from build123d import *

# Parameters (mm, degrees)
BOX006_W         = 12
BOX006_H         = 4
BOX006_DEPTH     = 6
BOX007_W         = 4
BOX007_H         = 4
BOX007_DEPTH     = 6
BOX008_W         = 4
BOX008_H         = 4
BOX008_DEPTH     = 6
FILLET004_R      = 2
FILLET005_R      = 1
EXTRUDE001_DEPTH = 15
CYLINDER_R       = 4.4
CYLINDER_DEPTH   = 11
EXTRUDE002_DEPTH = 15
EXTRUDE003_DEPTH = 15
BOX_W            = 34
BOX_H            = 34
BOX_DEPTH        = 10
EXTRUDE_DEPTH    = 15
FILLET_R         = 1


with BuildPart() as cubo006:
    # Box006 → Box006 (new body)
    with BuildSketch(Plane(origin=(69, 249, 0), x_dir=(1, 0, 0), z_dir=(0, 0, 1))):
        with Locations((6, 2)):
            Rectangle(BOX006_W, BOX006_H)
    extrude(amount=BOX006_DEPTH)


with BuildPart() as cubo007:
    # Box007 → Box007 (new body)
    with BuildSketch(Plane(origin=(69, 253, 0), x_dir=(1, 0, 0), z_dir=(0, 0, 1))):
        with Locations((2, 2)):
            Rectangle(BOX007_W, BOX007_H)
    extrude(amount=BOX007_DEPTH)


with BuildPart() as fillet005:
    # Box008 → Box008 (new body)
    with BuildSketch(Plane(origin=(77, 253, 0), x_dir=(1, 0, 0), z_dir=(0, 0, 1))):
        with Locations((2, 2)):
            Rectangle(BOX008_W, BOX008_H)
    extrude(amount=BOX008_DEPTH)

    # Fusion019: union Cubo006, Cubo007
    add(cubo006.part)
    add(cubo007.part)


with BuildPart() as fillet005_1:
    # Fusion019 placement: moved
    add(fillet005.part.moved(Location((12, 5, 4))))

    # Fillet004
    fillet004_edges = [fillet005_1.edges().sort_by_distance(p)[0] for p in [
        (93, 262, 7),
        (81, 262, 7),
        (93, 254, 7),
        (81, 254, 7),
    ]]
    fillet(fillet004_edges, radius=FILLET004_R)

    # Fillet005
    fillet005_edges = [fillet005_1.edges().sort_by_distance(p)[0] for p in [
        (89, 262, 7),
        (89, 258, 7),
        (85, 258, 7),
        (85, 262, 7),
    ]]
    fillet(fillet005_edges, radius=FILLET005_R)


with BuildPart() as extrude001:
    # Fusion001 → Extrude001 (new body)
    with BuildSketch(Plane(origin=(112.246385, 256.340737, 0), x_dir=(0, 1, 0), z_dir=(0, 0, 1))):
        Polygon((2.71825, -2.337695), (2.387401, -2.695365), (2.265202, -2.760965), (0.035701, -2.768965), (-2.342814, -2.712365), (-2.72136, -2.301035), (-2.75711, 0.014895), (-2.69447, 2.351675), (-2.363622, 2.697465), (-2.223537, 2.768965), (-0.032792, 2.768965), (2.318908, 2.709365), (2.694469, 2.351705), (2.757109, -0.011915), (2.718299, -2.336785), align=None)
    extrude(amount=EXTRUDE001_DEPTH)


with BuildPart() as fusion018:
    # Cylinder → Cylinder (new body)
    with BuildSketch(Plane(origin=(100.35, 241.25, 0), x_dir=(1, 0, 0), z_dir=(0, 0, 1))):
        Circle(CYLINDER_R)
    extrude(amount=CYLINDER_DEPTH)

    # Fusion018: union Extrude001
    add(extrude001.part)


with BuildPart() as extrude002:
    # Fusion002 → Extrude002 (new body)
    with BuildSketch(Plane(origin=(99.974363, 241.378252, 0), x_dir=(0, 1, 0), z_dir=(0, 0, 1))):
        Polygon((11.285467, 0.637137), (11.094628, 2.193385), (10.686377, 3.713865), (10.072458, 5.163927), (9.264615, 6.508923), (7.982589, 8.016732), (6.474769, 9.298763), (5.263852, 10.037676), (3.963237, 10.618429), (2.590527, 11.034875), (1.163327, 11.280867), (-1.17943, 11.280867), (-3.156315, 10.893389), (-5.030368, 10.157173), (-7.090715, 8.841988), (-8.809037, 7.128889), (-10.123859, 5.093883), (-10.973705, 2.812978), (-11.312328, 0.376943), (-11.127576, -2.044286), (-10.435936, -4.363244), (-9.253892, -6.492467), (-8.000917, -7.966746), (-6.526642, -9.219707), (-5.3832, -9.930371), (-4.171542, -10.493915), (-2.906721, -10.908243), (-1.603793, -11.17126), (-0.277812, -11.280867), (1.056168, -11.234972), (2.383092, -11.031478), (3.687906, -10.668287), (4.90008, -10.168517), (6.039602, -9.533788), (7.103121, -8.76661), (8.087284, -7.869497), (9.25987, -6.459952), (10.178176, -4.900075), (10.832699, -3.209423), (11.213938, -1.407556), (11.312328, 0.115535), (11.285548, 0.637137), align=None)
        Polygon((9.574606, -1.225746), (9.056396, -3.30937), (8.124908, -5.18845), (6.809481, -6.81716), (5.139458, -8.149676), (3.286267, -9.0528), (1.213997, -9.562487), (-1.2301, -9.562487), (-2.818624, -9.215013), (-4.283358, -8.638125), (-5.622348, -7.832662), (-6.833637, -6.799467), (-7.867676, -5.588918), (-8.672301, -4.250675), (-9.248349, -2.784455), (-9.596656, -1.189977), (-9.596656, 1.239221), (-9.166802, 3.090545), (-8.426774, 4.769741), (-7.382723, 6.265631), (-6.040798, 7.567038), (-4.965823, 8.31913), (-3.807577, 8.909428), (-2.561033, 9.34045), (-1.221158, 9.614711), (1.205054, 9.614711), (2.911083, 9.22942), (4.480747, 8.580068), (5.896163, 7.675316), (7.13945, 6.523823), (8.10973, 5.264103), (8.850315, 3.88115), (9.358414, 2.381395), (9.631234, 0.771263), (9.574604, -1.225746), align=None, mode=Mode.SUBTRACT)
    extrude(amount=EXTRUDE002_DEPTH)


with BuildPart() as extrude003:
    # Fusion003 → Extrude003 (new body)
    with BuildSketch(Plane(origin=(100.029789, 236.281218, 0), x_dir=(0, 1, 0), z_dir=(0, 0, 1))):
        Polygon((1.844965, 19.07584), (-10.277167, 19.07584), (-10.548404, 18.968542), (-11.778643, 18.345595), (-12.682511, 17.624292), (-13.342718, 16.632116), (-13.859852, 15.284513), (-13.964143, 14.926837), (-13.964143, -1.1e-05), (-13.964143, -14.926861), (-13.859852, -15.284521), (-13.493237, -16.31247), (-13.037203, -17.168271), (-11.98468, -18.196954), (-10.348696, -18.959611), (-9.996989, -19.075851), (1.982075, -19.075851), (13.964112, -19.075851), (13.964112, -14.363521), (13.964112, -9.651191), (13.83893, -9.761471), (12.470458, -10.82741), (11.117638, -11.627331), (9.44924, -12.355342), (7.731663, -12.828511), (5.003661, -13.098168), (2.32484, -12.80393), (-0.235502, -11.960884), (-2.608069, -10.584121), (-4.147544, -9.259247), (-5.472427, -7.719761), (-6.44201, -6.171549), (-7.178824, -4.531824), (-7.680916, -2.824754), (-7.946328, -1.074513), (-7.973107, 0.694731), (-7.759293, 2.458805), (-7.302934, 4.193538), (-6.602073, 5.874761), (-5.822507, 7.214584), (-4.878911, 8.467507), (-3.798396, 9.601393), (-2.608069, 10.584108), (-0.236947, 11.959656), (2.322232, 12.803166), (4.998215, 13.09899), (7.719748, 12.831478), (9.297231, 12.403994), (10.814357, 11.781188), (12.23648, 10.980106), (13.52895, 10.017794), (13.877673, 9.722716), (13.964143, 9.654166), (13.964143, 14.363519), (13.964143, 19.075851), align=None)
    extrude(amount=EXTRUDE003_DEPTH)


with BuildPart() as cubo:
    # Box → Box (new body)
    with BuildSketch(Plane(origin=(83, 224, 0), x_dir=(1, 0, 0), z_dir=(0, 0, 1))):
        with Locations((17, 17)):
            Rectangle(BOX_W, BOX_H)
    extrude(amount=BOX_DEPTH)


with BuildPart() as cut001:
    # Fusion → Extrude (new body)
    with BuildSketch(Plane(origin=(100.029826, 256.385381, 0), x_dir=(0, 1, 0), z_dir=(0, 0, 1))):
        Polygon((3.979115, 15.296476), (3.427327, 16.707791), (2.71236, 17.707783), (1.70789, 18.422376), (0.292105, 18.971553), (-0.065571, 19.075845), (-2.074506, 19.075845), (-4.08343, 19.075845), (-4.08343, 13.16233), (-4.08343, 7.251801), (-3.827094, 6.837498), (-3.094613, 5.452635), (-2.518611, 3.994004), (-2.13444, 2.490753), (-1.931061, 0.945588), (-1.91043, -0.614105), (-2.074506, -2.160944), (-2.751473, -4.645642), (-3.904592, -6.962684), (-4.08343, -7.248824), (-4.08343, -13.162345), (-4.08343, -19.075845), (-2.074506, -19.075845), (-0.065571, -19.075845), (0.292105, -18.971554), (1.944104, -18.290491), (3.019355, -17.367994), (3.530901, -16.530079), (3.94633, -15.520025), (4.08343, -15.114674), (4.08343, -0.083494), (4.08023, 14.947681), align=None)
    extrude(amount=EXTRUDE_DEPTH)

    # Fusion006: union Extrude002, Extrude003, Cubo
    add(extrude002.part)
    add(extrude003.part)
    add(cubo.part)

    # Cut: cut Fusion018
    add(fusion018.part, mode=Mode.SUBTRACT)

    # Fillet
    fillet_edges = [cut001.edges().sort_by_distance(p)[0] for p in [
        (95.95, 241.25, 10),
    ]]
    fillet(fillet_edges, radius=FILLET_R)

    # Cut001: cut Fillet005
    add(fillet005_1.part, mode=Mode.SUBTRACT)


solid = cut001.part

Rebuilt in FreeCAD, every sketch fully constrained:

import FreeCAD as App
import Part
import Sketcher


def edges_at(feature, points):
    """Names of the edges that pass closest to the given points."""
    edges = feature.Shape.Edges
    near = lambda p: min(range(len(edges)), key=lambda i: edges[i].distToShape(Part.Vertex(*p))[0])
    return sorted({f"Edge{near(p) + 1}" for p in points})


def add_polygon(sketch, points):
    """Adds a closed chain of lines whose ends are joined by coincident constraints."""
    first, n = sketch.GeometryCount, len(points)
    for a, b in zip(points, points[1:] + points[:1]):
        sketch.addGeometry(Part.LineSegment(App.Vector(*a, 0), App.Vector(*b, 0)), False)
    for i in range(n):
        sketch.addConstraint(Sketcher.Constraint("Coincident", first + i, 2, first + (i + 1) % n, 1))

doc = App.newDocument("Part")
body = doc.addObject("PartDesign::Body", "Body")

sketch1 = body.newObject("Sketcher::SketchObject", "Sketch")
sketch1.AttachmentSupport = (doc.getObject("XY_Plane"), [""])
sketch1.MapMode = "FlatFace"
add_polygon(sketch1, [(69, 253), (69, 249), (81, 249), (81, 253)])
sketch1.addConstraint(Sketcher.Constraint("Vertical", 0))
sketch1.addConstraint(Sketcher.Constraint("Horizontal", 1))
sketch1.addConstraint(Sketcher.Constraint("Vertical", 2))
sketch1.addConstraint(Sketcher.Constraint("Horizontal", 3))
sketch1.addConstraint(Sketcher.Constraint("DistanceX", 1, 1, 1, 2, 12.0))
sketch1.addConstraint(Sketcher.Constraint("DistanceY", 0, 2, 0, 1, 4.0))
sketch1.addConstraint(Sketcher.Constraint("DistanceX", -1, 1, 0, 2, 69.0))
sketch1.addConstraint(Sketcher.Constraint("DistanceY", -1, 1, 0, 2, 249.0))
pad1 = body.newObject("PartDesign::Pad", "Pad")
pad1.Profile = sketch1
pad1.Length = 6
body2 = doc.addObject("PartDesign::Body", "Body001")

sketch2 = body2.newObject("Sketcher::SketchObject", "Sketch001")
sketch2.AttachmentSupport = (doc.getObject("XY_Plane001"), [""])
sketch2.MapMode = "FlatFace"
add_polygon(sketch2, [(69, 257), (69, 253), (73, 253), (73, 257)])
sketch2.addConstraint(Sketcher.Constraint("Vertical", 0))
sketch2.addConstraint(Sketcher.Constraint("Horizontal", 1))
sketch2.addConstraint(Sketcher.Constraint("Vertical", 2))
sketch2.addConstraint(Sketcher.Constraint("Horizontal", 3))
sketch2.addConstraint(Sketcher.Constraint("Equal", 3, 0))
sketch2.addConstraint(Sketcher.Constraint("DistanceX", 1, 1, 1, 2, 4.0))
sketch2.addConstraint(Sketcher.Constraint("DistanceX", -1, 1, 0, 2, 69.0))
sketch2.addConstraint(Sketcher.Constraint("DistanceY", -1, 1, 0, 2, 253.0))
pad2 = body2.newObject("PartDesign::Pad", "Pad001")
pad2.Profile = sketch2
pad2.Length = 6
body3 = doc.addObject("PartDesign::Body", "Body002")

sketch3 = body3.newObject("Sketcher::SketchObject", "Sketch002")
sketch3.AttachmentSupport = (doc.getObject("XY_Plane002"), [""])
sketch3.MapMode = "FlatFace"
add_polygon(sketch3, [(77, 257), (77, 253), (81, 253), (81, 257)])
sketch3.addConstraint(Sketcher.Constraint("Vertical", 0))
sketch3.addConstraint(Sketcher.Constraint("Horizontal", 1))
sketch3.addConstraint(Sketcher.Constraint("Vertical", 2))
sketch3.addConstraint(Sketcher.Constraint("Horizontal", 3))
sketch3.addConstraint(Sketcher.Constraint("Equal", 3, 0))
sketch3.addConstraint(Sketcher.Constraint("DistanceX", 1, 1, 1, 2, 4.0))
sketch3.addConstraint(Sketcher.Constraint("DistanceX", -1, 1, 0, 2, 77.0))
sketch3.addConstraint(Sketcher.Constraint("DistanceY", -1, 1, 0, 2, 253.0))
pad3 = body3.newObject("PartDesign::Pad", "Pad002")
pad3.Profile = sketch3
pad3.Length = 6
doc.recompute()

boolean = body3.newObject("PartDesign::Boolean", "Boolean")
boolean.Type = "Fuse"
boolean.addObjects([body])
doc.recompute()

boolean2 = body3.newObject("PartDesign::Boolean", "Boolean001")
boolean2.Type = "Fuse"
boolean2.addObjects([body2])
body4 = doc.addObject("PartDesign::Body", "Body003")
doc.recompute()

body3.Placement = App.Placement(App.Vector(12, 5, 4), App.Rotation(App.Vector(0, 0, 1), 0))
boolean3 = body4.newObject("PartDesign::Boolean", "Boolean002")
boolean3.Type = "Fuse"
boolean3.addObjects([body3])
doc.recompute()

fillet = body4.newObject("PartDesign::Fillet", "Fillet")
fillet.Base = (boolean3, edges_at(boolean3, [
    (93, 262, 7),
    (81, 262, 7),
    (93, 254, 7),
    (81, 254, 7),
]))
fillet.Radius = 2
doc.recompute()

fillet2 = body4.newObject("PartDesign::Fillet", "Fillet001")
fillet2.Base = (fillet, edges_at(fillet, [
    (89, 262, 7),
    (89, 258, 7),
    (85, 258, 7),
    (85, 262, 7),
]))
fillet2.Radius = 1
body5 = doc.addObject("PartDesign::Body", "Body004")

sketch4 = body5.newObject("Sketcher::SketchObject", "Sketch003")
sketch4.AttachmentSupport = (doc.getObject("XY_Plane004"), [""])
sketch4.MapMode = "FlatFace"
add_polygon(sketch4, [(114.94175, 258.728138), (114.58408, 259.058987), (114.58317, 259.059036), (112.2583, 259.097846), (109.89468, 259.035206), (109.53702, 258.659645), (109.47742, 256.307945), (109.47742, 254.1172), (109.54892, 253.977115), (109.89471, 253.646267), (112.23149, 253.583627), (114.54742, 253.619377), (114.95875, 253.997923), (115.01535, 256.376438), (115.00735, 258.605939)])
sketch4.addConstraint(Sketcher.Constraint("Vertical", 6))
sketch4.addConstraint(Sketcher.Constraint("DistanceX", 6, 2, 10, 2, 5.07))
sketch4.addConstraint(Sketcher.Constraint("DistanceX", 13, 2, 12, 2, 0.008))
sketch4.addConstraint(Sketcher.Constraint("DistanceX", -1, 1, 2, 2, 112.2583))
sketch4.addConstraint(Sketcher.Constraint("DistanceY", -1, 1, 6, 2, 254.1172))
sketch4.addConstraint(Sketcher.Constraint("DistanceX", 3, 2, 0, 2, 4.6894))
sketch4.addConstraint(Sketcher.Constraint("DistanceY", 4, 2, 2, 2, 0.438201))
sketch4.addConstraint(Sketcher.Constraint("DistanceX", 5, 2, 4, 2, 0.0596))
sketch4.addConstraint(Sketcher.Constraint("DistanceY", 5, 2, 4, 2, 2.3517))
sketch4.addConstraint(Sketcher.Constraint("DistanceX", 6, 2, 7, 2, 0.0715))
sketch4.addConstraint(Sketcher.Constraint("DistanceX", 11, 2, 12, 2, 0.0566))
sketch4.addConstraint(Sketcher.Constraint("DistanceY", 12, 2, 13, 2, 2.229501))
sketch4.addConstraint(Sketcher.Constraint("DistanceX", 14, 2, 13, 2, 0.0656))
sketch4.addConstraint(Sketcher.Constraint("DistanceY", 13, 2, 14, 2, 0.122199))
sketch4.addConstraint(Sketcher.Constraint("Distance", 1, 0.000911))
sketch4.addConstraint(Sketcher.Constraint("Distance", 3, 2.36445))
sketch4.addConstraint(Sketcher.Constraint("Distance", 4, 0.51862))
sketch4.addConstraint(Sketcher.Constraint("Distance", 8, 0.478572))
sketch4.addConstraint(Sketcher.Constraint("Distance", 9, 2.337619))
sketch4.addConstraint(Sketcher.Constraint("Distance", 12, 2.379188))
sketch4.addConstraint(Sketcher.Constraint("DistanceY", 6, 2, 6, 1, 2.190745))
sketch4.addConstraint(Sketcher.Constraint("DistanceX", -1, 1, 0, 2, 114.58408))
sketch4.addConstraint(Sketcher.Constraint("DistanceX", -1, 1, 1, 2, 114.58317))
sketch4.addConstraint(Sketcher.Constraint("DistanceX", -1, 1, 8, 2, 109.89471))
sketch4.addConstraint(Sketcher.Constraint("DistanceX", -1, 1, 9, 2, 112.23149))
sketch4.addConstraint(Sketcher.Constraint("DistanceX", -1, 1, 11, 2, 114.95875))
sketch4.addConstraint(Sketcher.Constraint("DistanceY", -1, 1, 12, 2, 256.376438))
sketch4.addConstraint(Sketcher.Constraint("DistanceY", 1, 2, 2, 2, 0.03881))
sketch4.addConstraint(Sketcher.Constraint("DistanceY", 7, 2, 5, 2, 2.33083))
sketch4.addConstraint(Sketcher.Constraint("DistanceY", 9, 2, 10, 2, 0.03575))
pad4 = body5.newObject("PartDesign::Pad", "Pad003")
pad4.Profile = sketch4
pad4.Length = 15
body6 = doc.addObject("PartDesign::Body", "Body005")
body6.AllowCompound = True

sketch5 = body6.newObject("Sketcher::SketchObject", "Sketch004")
sketch5.AttachmentSupport = (doc.getObject("XY_Plane005"), [""])
sketch5.MapMode = "FlatFace"
sketch5.addGeometry(Part.Circle(App.Vector(100.35, 241.25, 0), App.Vector(0, 0, 1), 4.4), False)
sketch5.addConstraint(Sketcher.Constraint("Diameter", 0, 8.8))
sketch5.addConstraint(Sketcher.Constraint("DistanceX", -1, 1, 0, 3, 100.35))
sketch5.addConstraint(Sketcher.Constraint("DistanceY", -1, 1, 0, 3, 241.25))
pad5 = body6.newObject("PartDesign::Pad", "Pad004")
pad5.Profile = sketch5
pad5.Length = 11
doc.recompute()

boolean4 = body6.newObject("PartDesign::Boolean", "Boolean003")
boolean4.Type = "Fuse"
boolean4.addObjects([body5])
body7 = doc.addObject("PartDesign::Body", "Body006")

sketch6 = body7.newObject("Sketcher::SketchObject", "Sketch005")
sketch6.AttachmentSupport = (doc.getObject("XY_Plane006"), [""])
sketch6.MapMode = "FlatFace"
add_polygon(sketch6, [(99.337226, 252.663719), (97.780978, 252.47288), (96.260498, 252.064629), (94.810436, 251.45071), (93.46544, 250.642867), (91.957631, 249.360841), (90.6756, 247.853021), (89.936687, 246.642104), (89.355934, 245.341489), (88.939488, 243.968779), (88.693496, 242.541579), (88.693496, 240.198822), (89.080974, 238.221937), (89.81719, 236.347884), (91.132375, 234.287537), (92.845474, 232.569215), (94.88048, 231.254393), (97.161385, 230.404547), (99.59742, 230.065924), (102.018649, 230.250676), (104.337607, 230.942316), (106.46683, 232.12436), (107.941109, 233.377335), (109.19407, 234.85161), (109.904734, 235.995052), (110.468278, 237.20671), (110.882606, 238.471531), (111.145623, 239.774459), (111.25523, 241.10044), (111.209335, 242.43442), (111.005841, 243.761344), (110.64265, 245.066158), (110.14288, 246.278332), (109.508151, 247.417854), (108.740973, 248.481373), (107.84386, 249.465536), (106.434315, 250.638122), (104.874438, 251.556428), (103.183786, 252.210951), (101.381919, 252.59219), (99.858828, 252.69058), (99.337226, 252.6638)])
sketch6.addGeometry(Part.LineSegment(App.Vector(101.200109, 250.952858, 0), App.Vector(101.200109, 250.952856, 0)), False)
sketch6.addGeometry(Part.LineSegment(App.Vector(101.200109, 250.952858, 0), App.Vector(103.283733, 250.434648, 0)), False)
sketch6.addGeometry(Part.LineSegment(App.Vector(103.283733, 250.434648, 0), App.Vector(105.162813, 249.50316, 0)), False)
sketch6.addGeometry(Part.LineSegment(App.Vector(105.162813, 249.50316, 0), App.Vector(106.791523, 248.187733, 0)), False)
sketch6.addGeometry(Part.LineSegment(App.Vector(106.791523, 248.187733, 0), App.Vector(108.124039, 246.51771, 0)), False)
sketch6.addGeometry(Part.LineSegment(App.Vector(108.124039, 246.51771, 0), App.Vector(109.027163, 244.664519, 0)), False)
sketch6.addGeometry(Part.LineSegment(App.Vector(109.027163, 244.664519, 0), App.Vector(109.53685, 242.592249, 0)), False)
sketch6.addGeometry(Part.LineSegment(App.Vector(109.53685, 242.592249, 0), App.Vector(109.53685, 240.148152, 0)), False)
sketch6.addGeometry(Part.LineSegment(App.Vector(109.53685, 240.148152, 0), App.Vector(109.189376, 238.559628, 0)), False)
sketch6.addGeometry(Part.LineSegment(App.Vector(109.189376, 238.559628, 0), App.Vector(108.612488, 237.094894, 0)), False)
sketch6.addGeometry(Part.LineSegment(App.Vector(108.612488, 237.094894, 0), App.Vector(107.807025, 235.755904, 0)), False)
sketch6.addGeometry(Part.LineSegment(App.Vector(107.807025, 235.755904, 0), App.Vector(106.77383, 234.544615, 0)), False)
sketch6.addGeometry(Part.LineSegment(App.Vector(106.77383, 234.544615, 0), App.Vector(105.563281, 233.510576, 0)), False)
sketch6.addGeometry(Part.LineSegment(App.Vector(105.563281, 233.510576, 0), App.Vector(104.225038, 232.705951, 0)), False)
sketch6.addGeometry(Part.LineSegment(App.Vector(104.225038, 232.705951, 0), App.Vector(102.758818, 232.129903, 0)), False)
sketch6.addGeometry(Part.LineSegment(App.Vector(102.758818, 232.129903, 0), App.Vector(101.16434, 231.781596, 0)), False)
sketch6.addGeometry(Part.LineSegment(App.Vector(101.16434, 231.781596, 0), App.Vector(98.735142, 231.781596, 0)), False)
sketch6.addGeometry(Part.LineSegment(App.Vector(98.735142, 231.781596, 0), App.Vector(96.883818, 232.21145, 0)), False)
sketch6.addGeometry(Part.LineSegment(App.Vector(96.883818, 232.21145, 0), App.Vector(95.204622, 232.951478, 0)), False)
sketch6.addGeometry(Part.LineSegment(App.Vector(95.204622, 232.951478, 0), App.Vector(93.708732, 233.995529, 0)), False)
sketch6.addGeometry(Part.LineSegment(App.Vector(93.708732, 233.995529, 0), App.Vector(92.407325, 235.337454, 0)), False)
sketch6.addGeometry(Part.LineSegment(App.Vector(92.407325, 235.337454, 0), App.Vector(91.655233, 236.412429, 0)), False)
sketch6.addGeometry(Part.LineSegment(App.Vector(91.655233, 236.412429, 0), App.Vector(91.064935, 237.570675, 0)), False)
sketch6.addGeometry(Part.LineSegment(App.Vector(91.064935, 237.570675, 0), App.Vector(90.633913, 238.817219, 0)), False)
sketch6.addGeometry(Part.LineSegment(App.Vector(90.633913, 238.817219, 0), App.Vector(90.359652, 240.157094, 0)), False)
sketch6.addGeometry(Part.LineSegment(App.Vector(90.359652, 240.157094, 0), App.Vector(90.359652, 242.583306, 0)), False)
sketch6.addGeometry(Part.LineSegment(App.Vector(90.359652, 242.583306, 0), App.Vector(90.744943, 244.289335, 0)), False)
sketch6.addGeometry(Part.LineSegment(App.Vector(90.744943, 244.289335, 0), App.Vector(91.394295, 245.858999, 0)), False)
sketch6.addGeometry(Part.LineSegment(App.Vector(91.394295, 245.858999, 0), App.Vector(92.299047, 247.274415, 0)), False)
sketch6.addGeometry(Part.LineSegment(App.Vector(92.299047, 247.274415, 0), App.Vector(93.45054, 248.517702, 0)), False)
sketch6.addGeometry(Part.LineSegment(App.Vector(93.45054, 248.517702, 0), App.Vector(94.71026, 249.487982, 0)), False)
sketch6.addGeometry(Part.LineSegment(App.Vector(94.71026, 249.487982, 0), App.Vector(96.093213, 250.228567, 0)), False)
sketch6.addGeometry(Part.LineSegment(App.Vector(96.093213, 250.228567, 0), App.Vector(97.592968, 250.736666, 0)), False)
sketch6.addGeometry(Part.LineSegment(App.Vector(97.592968, 250.736666, 0), App.Vector(99.2031, 251.009486, 0)), False)
sketch6.addGeometry(Part.LineSegment(App.Vector(99.2031, 251.009486, 0), App.Vector(101.200109, 250.952856, 0)), False)
sketch6.addConstraint(Sketcher.Constraint("Coincident", 42, 1, 43, 1))
sketch6.addConstraint(Sketcher.Constraint("Coincident", 43, 2, 44, 1))
sketch6.addConstraint(Sketcher.Constraint("Coincident", 44, 2, 45, 1))
sketch6.addConstraint(Sketcher.Constraint("Coincident", 45, 2, 46, 1))
sketch6.addConstraint(Sketcher.Constraint("Coincident", 46, 2, 47, 1))
sketch6.addConstraint(Sketcher.Constraint("Coincident", 47, 2, 48, 1))
sketch6.addConstraint(Sketcher.Constraint("Coincident", 48, 2, 49, 1))
sketch6.addConstraint(Sketcher.Constraint("Coincident", 49, 2, 50, 1))
sketch6.addConstraint(Sketcher.Constraint("Coincident", 50, 2, 51, 1))
sketch6.addConstraint(Sketcher.Constraint("Coincident", 51, 2, 52, 1))
sketch6.addConstraint(Sketcher.Constraint("Coincident", 52, 2, 53, 1))
sketch6.addConstraint(Sketcher.Constraint("Coincident", 53, 2, 54, 1))
sketch6.addConstraint(Sketcher.Constraint("Coincident", 54, 2, 55, 1))
sketch6.addConstraint(Sketcher.Constraint("Coincident", 55, 2, 56, 1))
sketch6.addConstraint(Sketcher.Constraint("Coincident", 56, 2, 57, 1))
sketch6.addConstraint(Sketcher.Constraint("Coincident", 57, 2, 58, 1))
sketch6.addConstraint(Sketcher.Constraint("Coincident", 58, 2, 59, 1))
sketch6.addConstraint(Sketcher.Constraint("Coincident", 59, 2, 60, 1))
sketch6.addConstraint(Sketcher.Constraint("Coincident", 60, 2, 61, 1))
sketch6.addConstraint(Sketcher.Constraint("Coincident", 61, 2, 62, 1))
sketch6.addConstraint(Sketcher.Constraint("Coincident", 62, 2, 63, 1))
sketch6.addConstraint(Sketcher.Constraint("Coincident", 63, 2, 64, 1))
sketch6.addConstraint(Sketcher.Constraint("Coincident", 64, 2, 65, 1))
sketch6.addConstraint(Sketcher.Constraint("Coincident", 65, 2, 66, 1))
sketch6.addConstraint(Sketcher.Constraint("Coincident", 66, 2, 67, 1))
sketch6.addConstraint(Sketcher.Constraint("Coincident", 67, 2, 68, 1))
sketch6.addConstraint(Sketcher.Constraint("Coincident", 68, 2, 69, 1))
sketch6.addConstraint(Sketcher.Constraint("Coincident", 69, 2, 70, 1))
sketch6.addConstraint(Sketcher.Constraint("Coincident", 70, 2, 71, 1))
sketch6.addConstraint(Sketcher.Constraint("Coincident", 71, 2, 72, 1))
sketch6.addConstraint(Sketcher.Constraint("Coincident", 72, 2, 73, 1))
sketch6.addConstraint(Sketcher.Constraint("Coincident", 73, 2, 74, 1))
sketch6.addConstraint(Sketcher.Constraint("Coincident", 74, 2, 75, 1))
sketch6.addConstraint(Sketcher.Constraint("Coincident", 75, 2, 76, 1))
sketch6.addConstraint(Sketcher.Constraint("Coincident", 76, 2, 42, 2))
sketch6.addConstraint(Sketcher.Constraint("Vertical", 10))
sketch6.addConstraint(Sketcher.Constraint("Vertical", 41))
sketch6.addConstraint(Sketcher.Constraint("Horizontal", 42))
sketch6.addConstraint(Sketcher.Constraint("Vertical", 49))
sketch6.addConstraint(Sketcher.Constraint("Horizontal", 58))
sketch6.addConstraint(Sketcher.Constraint("Vertical", 67))
sketch6.addConstraint(Sketcher.Constraint("DistanceY", -1, 1, 69, 2, 245.858999))
sketch6.addConstraint(Sketcher.Constraint("Distance", 11, 2.014501))
sketch6.addConstraint(Sketcher.Constraint("Distance", 21, 1.934798))
sketch6.addConstraint(Sketcher.Constraint("Distance", 24, 1.3363))
sketch6.addConstraint(Sketcher.Constraint("Distance", 43, 2.147098))
sketch6.addConstraint(Sketcher.Constraint("DistanceY", 67, 1, 67, 2, 2.426212))
sketch6.addConstraint(Sketcher.Constraint("DistanceX", -1, 1, 1, 2, 96.260498))
sketch6.addConstraint(Sketcher.Constraint("DistanceX", -1, 1, 5, 2, 90.6756))
sketch6.addConstraint(Sketcher.Constraint("DistanceY", -1, 1, 40, 2, 252.6638))
sketch6.addConstraint(Sketcher.Constraint("DistanceX", -1, 1, 75, 2, 99.2031))
sketch6.addConstraint(Sketcher.Constraint("Distance", 4, 1.979161))
sketch6.addConstraint(Sketcher.Constraint("Distance", 6, 1.41856))
sketch6.addConstraint(Sketcher.Constraint("Distance", 8, 1.434489))
sketch6.addConstraint(Sketcher.Constraint("Distance", 13, 2.444328))
sketch6.addConstraint(Sketcher.Constraint("Distance", 15, 2.42281))
sketch6.addConstraint(Sketcher.Constraint("Distance", 26, 1.32921))
sketch6.addConstraint(Sketcher.Constraint("Distance", 28, 1.334769))
sketch6.addConstraint(Sketcher.Constraint("Distance", 31, 1.311158))
sketch6.addConstraint(Sketcher.Constraint("Distance", 33, 1.311348))
sketch6.addConstraint(Sketcher.Constraint("Distance", 36, 1.810111))
sketch6.addConstraint(Sketcher.Constraint("Distance", 40, 0.522289))
sketch6.addConstraint(Sketcher.Constraint("Distance", 47, 2.061541))
sketch6.addConstraint(Sketcher.Constraint("Distance", 48, 2.13403))
sketch6.addConstraint(Sketcher.Constraint("Distance", 53, 1.592078))
sketch6.addConstraint(Sketcher.Constraint("Distance", 55, 1.561511))
sketch6.addConstraint(Sketcher.Constraint("Distance", 56, 1.57532))
sketch6.addConstraint(Sketcher.Constraint("Distance", 60, 1.835032))
sketch6.addConstraint(Sketcher.Constraint("Distance", 63, 1.31195))
sketch6.addConstraint(Sketcher.Constraint("Distance", 65, 1.318959))
sketch6.addConstraint(Sketcher.Constraint("Distance", 71, 1.694609))
sketch6.addConstraint(Sketcher.Constraint("Distance", 75, 1.633082))
sketch6.addConstraint(Sketcher.Constraint("Distance", 76, 1.997812))
sketch6.addConstraint(Sketcher.Constraint("DistanceX", 58, 2, 58, 1, 2.429198))
sketch6.addConstraint(Sketcher.Constraint("DistanceY", 10, 2, 10, 1, 2.342757))
sketch6.addConstraint(Sketcher.Constraint("DistanceY", 49, 2, 49, 1, 2.444097))
sketch6.addConstraint(Sketcher.Constraint("DistanceX", -1, 1, 0, 2, 97.780978))
sketch6.addConstraint(Sketcher.Constraint("DistanceY", -1, 1, 0, 2, 252.47288))
sketch6.addConstraint(Sketcher.Constraint("DistanceY", -1, 1, 1, 2, 252.064629))
sketch6.addConstraint(Sketcher.Constraint("DistanceY", -1, 1, 2, 2, 251.45071))
sketch6.addConstraint(Sketcher.Constraint("DistanceX", -1, 1, 3, 2, 93.46544))
sketch6.addConstraint(Sketcher.Constraint("DistanceX", -1, 1, 4, 2, 91.957631))
sketch6.addConstraint(Sketcher.Constraint("DistanceY", -1, 1, 4, 2, 249.360841))
sketch6.addConstraint(Sketcher.Constraint("DistanceY", -1, 1, 5, 2, 247.853021))
sketch6.addConstraint(Sketcher.Constraint("DistanceY", -1, 1, 7, 2, 245.341489))
sketch6.addConstraint(Sketcher.Constraint("DistanceY", -1, 1, 8, 2, 243.968779))
sketch6.addConstraint(Sketcher.Constraint("DistanceY", -1, 1, 9, 2, 242.541579))
sketch6.addConstraint(Sketcher.Constraint("DistanceX", -1, 1, 12, 2, 89.81719))
sketch6.addConstraint(Sketcher.Constraint("DistanceX", -1, 1, 15, 2, 94.88048))
sketch6.addConstraint(Sketcher.Constraint("DistanceX", -1, 1, 17, 2, 99.59742))
sketch6.addConstraint(Sketcher.Constraint("DistanceX", -1, 1, 18, 2, 102.018649))
sketch6.addConstraint(Sketcher.Constraint("DistanceX", -1, 1, 20, 2, 106.46683))
sketch6.addConstraint(Sketcher.Constraint("DistanceY", -1, 1, 20, 2, 232.12436))
sketch6.addConstraint(Sketcher.Constraint("DistanceX", -1, 1, 21, 2, 107.941109))
sketch6.addConstraint(Sketcher.Constraint("DistanceX", -1, 1, 22, 2, 109.19407))
sketch6.addConstraint(Sketcher.Constraint("DistanceY", -1, 1, 22, 2, 234.85161))
sketch6.addConstraint(Sketcher.Constraint("DistanceY", -1, 1, 23, 2, 235.995052))
sketch6.addConstraint(Sketcher.Constraint("DistanceX", -1, 1, 24, 2, 110.468278))
sketch6.addConstraint(Sketcher.Constraint("DistanceY", -1, 1, 24, 2, 237.20671))
sketch6.addConstraint(Sketcher.Constraint("DistanceY", -1, 1, 25, 2, 238.471531))
sketch6.addConstraint(Sketcher.Constraint("DistanceY", -1, 1, 26, 2, 239.774459))
sketch6.addConstraint(Sketcher.Constraint("DistanceX", -1, 1, 27, 2, 111.25523))
sketch6.addConstraint(Sketcher.Constraint("DistanceY", -1, 1, 27, 2, 241.10044))
sketch6.addConstraint(Sketcher.Constraint("DistanceY", -1, 1, 28, 2, 242.43442))
sketch6.addConstraint(Sketcher.Constraint("DistanceX", -1, 1, 29, 2, 111.005841))
sketch6.addConstraint(Sketcher.Constraint("DistanceX", -1, 1, 30, 2, 110.64265))
sketch6.addConstraint(Sketcher.Constraint("DistanceY", -1, 1, 30, 2, 245.066158))
sketch6.addConstraint(Sketcher.Constraint("DistanceX", -1, 1, 31, 2, 110.14288))
sketch6.addConstraint(Sketcher.Constraint("DistanceX", -1, 1, 32, 2, 109.508151))
sketch6.addConstraint(Sketcher.Constraint("DistanceX", -1, 1, 34, 2, 107.84386))
sketch6.addConstraint(Sketcher.Constraint("DistanceY", -1, 1, 36, 2, 251.556428))
sketch6.addConstraint(Sketcher.Constraint("DistanceY", -1, 1, 37, 2, 252.210951))
sketch6.addConstraint(Sketcher.Constraint("DistanceX", -1, 1, 38, 2, 101.381919))
sketch6.addConstraint(Sketcher.Constraint("DistanceY", -1, 1, 38, 2, 252.59219))
sketch6.addConstraint(Sketcher.Constraint("DistanceX", -1, 1, 39, 2, 99.858828))
sketch6.addConstraint(Sketcher.Constraint("DistanceY", -1, 1, 39, 2, 252.69058))
sketch6.addConstraint(Sketcher.Constraint("DistanceY", -1, 1, 41, 2, 252.663719))
sketch6.addConstraint(Sketcher.Constraint("DistanceX", -1, 1, 42, 1, 101.200109))
sketch6.addConstraint(Sketcher.Constraint("DistanceY", -1, 1, 42, 1, 250.952858))
sketch6.addConstraint(Sketcher.Constraint("DistanceY", -1, 1, 43, 2, 250.434648))
sketch6.addConstraint(Sketcher.Constraint("DistanceY", -1, 1, 44, 2, 249.50316))
sketch6.addConstraint(Sketcher.Constraint("DistanceX", -1, 1, 46, 2, 108.124039))
sketch6.addConstraint(Sketcher.Constraint("DistanceY", -1, 1, 46, 2, 246.51771))
sketch6.addConstraint(Sketcher.Constraint("DistanceY", -1, 1, 47, 2, 244.664519))
sketch6.addConstraint(Sketcher.Constraint("DistanceX", -1, 1, 48, 2, 109.53685))
sketch6.addConstraint(Sketcher.Constraint("DistanceY", -1, 1, 50, 2, 238.559628))
sketch6.addConstraint(Sketcher.Constraint("DistanceX", -1, 1, 51, 2, 108.612488))
sketch6.addConstraint(Sketcher.Constraint("DistanceX", -1, 1, 53, 2, 106.77383))
sketch6.addConstraint(Sketcher.Constraint("DistanceX", -1, 1, 54, 2, 105.563281))
sketch6.addConstraint(Sketcher.Constraint("DistanceY", -1, 1, 55, 2, 232.705951))
sketch6.addConstraint(Sketcher.Constraint("DistanceX", -1, 1, 56, 2, 102.758818))
sketch6.addConstraint(Sketcher.Constraint("DistanceX", -1, 1, 57, 2, 101.16434))
sketch6.addConstraint(Sketcher.Constraint("DistanceX", -1, 1, 59, 2, 96.883818))
sketch6.addConstraint(Sketcher.Constraint("DistanceY", -1, 1, 59, 2, 232.21145))
sketch6.addConstraint(Sketcher.Constraint("DistanceX", -1, 1, 60, 2, 95.204622))
sketch6.addConstraint(Sketcher.Constraint("DistanceX", -1, 1, 61, 2, 93.708732))
sketch6.addConstraint(Sketcher.Constraint("DistanceY", -1, 1, 61, 2, 233.995529))
sketch6.addConstraint(Sketcher.Constraint("DistanceY", -1, 1, 63, 2, 236.412429))
sketch6.addConstraint(Sketcher.Constraint("DistanceY", -1, 1, 65, 2, 238.817219))
sketch6.addConstraint(Sketcher.Constraint("DistanceX", -1, 1, 66, 2, 90.359652))
sketch6.addConstraint(Sketcher.Constraint("DistanceX", -1, 1, 71, 2, 93.45054))
sketch6.addConstraint(Sketcher.Constraint("DistanceX", -1, 1, 72, 2, 94.71026))
sketch6.addConstraint(Sketcher.Constraint("DistanceY", -1, 1, 72, 2, 249.487982))
sketch6.addConstraint(Sketcher.Constraint("DistanceX", -1, 1, 74, 2, 97.592968))
sketch6.addConstraint(Sketcher.Constraint("DistanceX", -1, 1, 76, 2, 101.200109))
sketch6.addConstraint(Sketcher.Constraint("Distance", 2, 1.574667))
sketch6.addConstraint(Sketcher.Constraint("Distance", 7, 1.424385))
sketch6.addConstraint(Sketcher.Constraint("Distance", 9, 1.448244))
sketch6.addConstraint(Sketcher.Constraint("Distance", 12, 2.013477))
sketch6.addConstraint(Sketcher.Constraint("Distance", 14, 2.426384))
sketch6.addConstraint(Sketcher.Constraint("Distance", 16, 2.434084))
sketch6.addConstraint(Sketcher.Constraint("Distance", 17, 2.459458))
sketch6.addConstraint(Sketcher.Constraint("Distance", 18, 2.428268))
sketch6.addConstraint(Sketcher.Constraint("Distance", 19, 2.419903))
sketch6.addConstraint(Sketcher.Constraint("Distance", 20, 2.435327))
sketch6.addConstraint(Sketcher.Constraint("Distance", 25, 1.330954))
sketch6.addConstraint(Sketcher.Constraint("Distance", 29, 1.342437))
sketch6.addConstraint(Sketcher.Constraint("Distance", 32, 1.304374))
sketch6.addConstraint(Sketcher.Constraint("Distance", 34, 1.331686))
sketch6.addConstraint(Sketcher.Constraint("Distance", 35, 1.833514))
sketch6.addConstraint(Sketcher.Constraint("Distance", 37, 1.812927))
sketch6.addConstraint(Sketcher.Constraint("Distance", 38, 1.841757))
sketch6.addConstraint(Sketcher.Constraint("Distance", 44, 2.097287))
sketch6.addConstraint(Sketcher.Constraint("Distance", 45, 2.093572))
sketch6.addConstraint(Sketcher.Constraint("Distance", 46, 2.136487))
sketch6.addConstraint(Sketcher.Constraint("Distance", 50, 1.626083))
sketch6.addConstraint(Sketcher.Constraint("Distance", 51, 1.574244))
sketch6.addConstraint(Sketcher.Constraint("Distance", 52, 1.562583))
sketch6.addConstraint(Sketcher.Constraint("Distance", 54, 1.592063))
sketch6.addConstraint(Sketcher.Constraint("Distance", 57, 1.632078))
sketch6.addConstraint(Sketcher.Constraint("Distance", 59, 1.900572))
sketch6.addConstraint(Sketcher.Constraint("Distance", 62, 1.869338))
sketch6.addConstraint(Sketcher.Constraint("Distance", 64, 1.299994))
sketch6.addConstraint(Sketcher.Constraint("Distance", 66, 1.367656))
sketch6.addConstraint(Sketcher.Constraint("Distance", 68, 1.748995))
sketch6.addConstraint(Sketcher.Constraint("Distance", 69, 1.698677))
sketch6.addConstraint(Sketcher.Constraint("Distance", 70, 1.679875))
sketch6.addConstraint(Sketcher.Constraint("Distance", 72, 1.590075))
sketch6.addConstraint(Sketcher.Constraint("Distance", 73, 1.568765))
sketch6.addConstraint(Sketcher.Constraint("Distance", 74, 1.583487))
sketch6.addConstraint(Sketcher.Constraint("DistanceX", -1, 1, 6, 2, 89.936687))
sketch6.addConstraint(Sketcher.Constraint("DistanceX", -1, 1, 11, 2, 89.080974))
sketch6.addConstraint(Sketcher.Constraint("DistanceX", -1, 1, 13, 2, 91.132375))
sketch6.addConstraint(Sketcher.Constraint("DistanceX", -1, 1, 14, 2, 92.845474))
sketch6.addConstraint(Sketcher.Constraint("DistanceX", -1, 1, 16, 2, 97.161385))
sketch6.addConstraint(Sketcher.Constraint("DistanceX", -1, 1, 33, 2, 108.740973))
sketch6.addConstraint(Sketcher.Constraint("DistanceX", -1, 1, 62, 2, 92.407325))
sketch6.addConstraint(Sketcher.Constraint("DistanceX", -1, 1, 64, 2, 91.064935))
sketch6.addConstraint(Sketcher.Constraint("DistanceX", -1, 1, 68, 2, 90.744943))
pad6 = body7.newObject("PartDesign::Pad", "Pad005")
pad6.Profile = sketch6
pad6.Length = 15
body8 = doc.addObject("PartDesign::Body", "Body007")

sketch7 = body8.newObject("Sketcher::SketchObject", "Sketch006")
sketch7.AttachmentSupport = (doc.getObject("XY_Plane007"), [""])
sketch7.MapMode = "FlatFace"
add_polygon(sketch7, [(80.953949, 238.126183), (80.953949, 226.004051), (81.061247, 225.732814), (81.684194, 224.502575), (82.405497, 223.598707), (83.397673, 222.9385), (84.745276, 222.421366), (85.102952, 222.317075), (114.95665, 222.317075), (115.31431, 222.421366), (116.342259, 222.787981), (117.19806, 223.244015), (118.226743, 224.296538), (118.9894, 225.932522), (119.10564, 226.284229), (119.10564, 250.24533), (109.68098, 250.24533), (109.79126, 250.120148), (110.857199, 248.751676), (111.65712, 247.398856), (112.385131, 245.730458), (112.8583, 244.012881), (113.127957, 241.284879), (112.833719, 238.606058), (111.990673, 236.045716), (110.61391, 233.673149), (109.289036, 232.133674), (107.74955, 230.808791), (106.201338, 229.839208), (104.561613, 229.102394), (102.854543, 228.600302), (101.104302, 228.33489), (99.335058, 228.308111), (97.570984, 228.521925), (95.836251, 228.978284), (94.155028, 229.679145), (92.815205, 230.458711), (91.562282, 231.402307), (90.428396, 232.482822), (89.445681, 233.673149), (88.070133, 236.044271), (87.226623, 238.60345), (86.930799, 241.279433), (87.198311, 244.000966), (87.625795, 245.578449), (88.248601, 247.095575), (89.049683, 248.517698), (90.011995, 249.810168), (90.307073, 250.158891), (90.375623, 250.245361), (80.953938, 250.245361)])
sketch7.addConstraint(Sketcher.Constraint("Vertical", 0))
sketch7.addConstraint(Sketcher.Constraint("Horizontal", 7))
sketch7.addConstraint(Sketcher.Constraint("Vertical", 14))
sketch7.addConstraint(Sketcher.Constraint("Horizontal", 15))
sketch7.addConstraint(Sketcher.Constraint("Horizontal", 49))
sketch7.addConstraint(Sketcher.Constraint("Horizontal", 5, 2, 8, 2))
sketch7.addConstraint(Sketcher.Constraint("Horizontal", 24, 2, 38, 2))
sketch7.addConstraint(Sketcher.Constraint("DistanceY", 14, 1, 14, 2, 23.961101))
sketch7.addConstraint(Sketcher.Constraint("DistanceY", 40, 2, 43, 2, 6.974999))
sketch7.addConstraint(Sketcher.Constraint("Distance", 36, 1.568499))
sketch7.addConstraint(Sketcher.Constraint("DistanceX", 15, 2, 15, 1, 9.42466))
sketch7.addConstraint(Sketcher.Constraint("DistanceY", 0, 2, 0, 1, 12.122132))
sketch7.addConstraint(Sketcher.Constraint("DistanceY", -1, 1, 4, 2, 222.9385))
sketch7.addConstraint(Sketcher.Constraint("DistanceX", -1, 1, 12, 2, 118.9894))
sketch7.addConstraint(Sketcher.Constraint("DistanceX", -1, 1, 17, 2, 110.857199))
sketch7.addConstraint(Sketcher.Constraint("DistanceX", -1, 1, 20, 2, 112.8583))
sketch7.addConstraint(Sketcher.Constraint("DistanceY", -1, 1, 29, 2, 228.600302))
sketch7.addConstraint(Sketcher.Constraint("DistanceX", -1, 1, 41, 2, 86.930799))
sketch7.addConstraint(Sketcher.Constraint("DistanceX", -1, 1, 44, 2, 88.248601))
sketch7.addConstraint(Sketcher.Constraint("DistanceY", -1, 1, 45, 2, 248.517698))
sketch7.addConstraint(Sketcher.Constraint("DistanceX", 0, 2, 1, 2, 0.107298))
sketch7.addConstraint(Sketcher.Constraint("DistanceY", 6, 2, 2, 2, 2.1855))
sketch7.addConstraint(Sketcher.Constraint("DistanceX", 9, 2, 10, 2, 0.855801))
sketch7.addConstraint(Sketcher.Constraint("DistanceY", 22, 2, 19, 2, 7.1244))
sketch7.addConstraint(Sketcher.Constraint("DistanceX", 18, 2, 22, 2, 1.176599))
sketch7.addConstraint(Sketcher.Constraint("DistanceY", 22, 2, 18, 2, 8.792798))
sketch7.addConstraint(Sketcher.Constraint("DistanceY", 7, 2, 25, 2, 9.816599))
sketch7.addConstraint(Sketcher.Constraint("DistanceX", 26, 2, 7, 2, 7.2071))
sketch7.addConstraint(Sketcher.Constraint("DistanceY", 30, 2, 26, 2, 2.473901))
sketch7.addConstraint(Sketcher.Constraint("DistanceY", 31, 2, 35, 2, 2.1506))
sketch7.addConstraint(Sketcher.Constraint("DistanceX", 36, 2, 32, 2, 6.008702))
sketch7.addConstraint(Sketcher.Constraint("DistanceX", 38, 2, 36, 2, 2.116601))
sketch7.addConstraint(Sketcher.Constraint("DistanceY", 38, 2, 40, 2, 4.930301))
sketch7.addConstraint(Sketcher.Constraint("DistanceX", 43, 2, 46, 2, 2.3862))
sketch7.addConstraint(Sketcher.Constraint("DistanceY", 42, 2, 46, 2, 5.809202))
sketch7.addConstraint(Sketcher.Constraint("Distance", 1, 0.291689))
sketch7.addConstraint(Sketcher.Constraint("Distance", 5, 1.44342))
sketch7.addConstraint(Sketcher.Constraint("Distance", 6, 0.37257))
sketch7.addConstraint(Sketcher.Constraint("Distance", 9, 1.091369))
sketch7.addConstraint(Sketcher.Constraint("Distance", 11, 1.471731))
sketch7.addConstraint(Sketcher.Constraint("Distance", 13, 0.370418))
sketch7.addConstraint(Sketcher.Constraint("Distance", 16, 0.16683))
sketch7.addConstraint(Sketcher.Constraint("Distance", 17, 1.73463))
sketch7.addConstraint(Sketcher.Constraint("Distance", 18, 1.571622))
sketch7.addConstraint(Sketcher.Constraint("Distance", 20, 1.781561))
sketch7.addConstraint(Sketcher.Constraint("Distance", 22, 2.694932))
sketch7.addConstraint(Sketcher.Constraint("Distance", 24, 2.743091))
sketch7.addConstraint(Sketcher.Constraint("Distance", 26, 2.031091))
sketch7.addConstraint(Sketcher.Constraint("Distance", 27, 1.82676))
sketch7.addConstraint(Sketcher.Constraint("Distance", 30, 1.770251))
sketch7.addConstraint(Sketcher.Constraint("Distance", 34, 1.82146))
sketch7.addConstraint(Sketcher.Constraint("Distance", 38, 1.54357))
sketch7.addConstraint(Sketcher.Constraint("Distance", 39, 2.741232))
sketch7.addConstraint(Sketcher.Constraint("Distance", 42, 2.734649))
sketch7.addConstraint(Sketcher.Constraint("Distance", 43, 1.634379))
sketch7.addConstraint(Sketcher.Constraint("Distance", 50, 12.119178))
sketch7.addConstraint(Sketcher.Constraint("DistanceX", 7, 1, 7, 2, 29.853698))
sketch7.addConstraint(Sketcher.Constraint("DistanceX", 49, 2, 49, 1, 9.421685))
sketch7.addConstraint(Sketcher.Constraint("DistanceX", -1, 1, 0, 2, 80.953949))
sketch7.addConstraint(Sketcher.Constraint("DistanceY", -1, 1, 0, 2, 226.004051))
sketch7.addConstraint(Sketcher.Constraint("DistanceX", -1, 1, 6, 2, 85.102952))
sketch7.addConstraint(Sketcher.Constraint("DistanceX", -1, 1, 8, 2, 115.31431))
sketch7.addConstraint(Sketcher.Constraint("DistanceX", -1, 1, 9, 2, 116.342259))
sketch7.addConstraint(Sketcher.Constraint("DistanceY", -1, 1, 9, 2, 222.787981))
sketch7.addConstraint(Sketcher.Constraint("DistanceY", -1, 1, 11, 2, 224.296538))
sketch7.addConstraint(Sketcher.Constraint("DistanceY", -1, 1, 12, 2, 225.932522))
sketch7.addConstraint(Sketcher.Constraint("DistanceX", -1, 1, 13, 2, 119.10564))
sketch7.addConstraint(Sketcher.Constraint("DistanceX", -1, 1, 16, 2, 109.79126))
sketch7.addConstraint(Sketcher.Constraint("DistanceX", -1, 1, 18, 2, 111.65712))
sketch7.addConstraint(Sketcher.Constraint("DistanceX", -1, 1, 19, 2, 112.385131))
sketch7.addConstraint(Sketcher.Constraint("DistanceY", -1, 1, 21, 2, 241.284879))
sketch7.addConstraint(Sketcher.Constraint("DistanceX", -1, 1, 24, 2, 110.61391))
sketch7.addConstraint(Sketcher.Constraint("DistanceY", -1, 1, 24, 2, 233.673149))
sketch7.addConstraint(Sketcher.Constraint("DistanceY", -1, 1, 26, 2, 230.808791))
sketch7.addConstraint(Sketcher.Constraint("DistanceX", -1, 1, 27, 2, 106.201338))
sketch7.addConstraint(Sketcher.Constraint("DistanceX", -1, 1, 31, 2, 99.335058))
sketch7.addConstraint(Sketcher.Constraint("DistanceY", -1, 1, 31, 2, 228.308111))
sketch7.addConstraint(Sketcher.Constraint("DistanceX", -1, 1, 33, 2, 95.836251))
sketch7.addConstraint(Sketcher.Constraint("DistanceX", -1, 1, 34, 2, 94.155028))
sketch7.addConstraint(Sketcher.Constraint("DistanceX", -1, 1, 36, 2, 91.562282))
sketch7.addConstraint(Sketcher.Constraint("DistanceY", -1, 1, 37, 2, 232.482822))
sketch7.addConstraint(Sketcher.Constraint("DistanceY", -1, 1, 39, 2, 236.044271))
sketch7.addConstraint(Sketcher.Constraint("DistanceX", -1, 1, 42, 2, 87.198311))
sketch7.addConstraint(Sketcher.Constraint("DistanceY", -1, 1, 46, 2, 249.810168))
sketch7.addConstraint(Sketcher.Constraint("DistanceY", -1, 1, 47, 2, 250.158891))
sketch7.addConstraint(Sketcher.Constraint("DistanceY", 2, 2, 1, 2, 1.230239))
sketch7.addConstraint(Sketcher.Constraint("DistanceY", 3, 2, 2, 2, 0.903868))
sketch7.addConstraint(Sketcher.Constraint("DistanceX", 1, 2, 3, 2, 1.34425))
sketch7.addConstraint(Sketcher.Constraint("DistanceX", 2, 2, 4, 2, 1.713479))
sketch7.addConstraint(Sketcher.Constraint("DistanceY", 8, 2, 10, 2, 0.822649))
sketch7.addConstraint(Sketcher.Constraint("DistanceY", 23, 2, 22, 2, 2.560342))
sketch7.addConstraint(Sketcher.Constraint("DistanceY", 28, 2, 25, 2, 3.03128))
sketch7.addConstraint(Sketcher.Constraint("DistanceX", 28, 2, 23, 2, 7.42906))
sketch7.addConstraint(Sketcher.Constraint("DistanceX", 29, 2, 28, 2, 1.70707))
sketch7.addConstraint(Sketcher.Constraint("DistanceY", 32, 2, 28, 2, 0.580469))
sketch7.addConstraint(Sketcher.Constraint("DistanceY", 32, 2, 33, 2, 0.456359))
sketch7.addConstraint(Sketcher.Constraint("DistanceX", 35, 2, 32, 2, 4.755779))
sketch7.addConstraint(Sketcher.Constraint("DistanceX", 40, 2, 39, 2, 0.84351))
sketch7.addConstraint(Sketcher.Constraint("DistanceY", 42, 2, 44, 2, 3.094609))
sketch7.addConstraint(Sketcher.Constraint("DistanceX", 43, 2, 45, 2, 1.423888))
sketch7.addConstraint(Sketcher.Constraint("DistanceX", 46, 2, 47, 2, 0.295078))
sketch7.addConstraint(Sketcher.Constraint("DistanceX", 47, 2, 48, 2, 0.06855))
pad7 = body8.newObject("PartDesign::Pad", "Pad006")
pad7.Profile = sketch7
pad7.Length = 15
body9 = doc.addObject("PartDesign::Body", "Body008")

sketch8 = body9.newObject("Sketcher::SketchObject", "Sketch007")
sketch8.AttachmentSupport = (doc.getObject("XY_Plane008"), [""])
sketch8.MapMode = "FlatFace"
add_polygon(sketch8, [(83, 258), (83, 224), (117, 224), (117, 258)])
sketch8.addConstraint(Sketcher.Constraint("Vertical", 0))
sketch8.addConstraint(Sketcher.Constraint("Horizontal", 1))
sketch8.addConstraint(Sketcher.Constraint("Vertical", 2))
sketch8.addConstraint(Sketcher.Constraint("Horizontal", 3))
sketch8.addConstraint(Sketcher.Constraint("Equal", 3, 0))
sketch8.addConstraint(Sketcher.Constraint("DistanceX", 1, 1, 1, 2, 34.0))
sketch8.addConstraint(Sketcher.Constraint("DistanceX", -1, 1, 0, 2, 83.0))
sketch8.addConstraint(Sketcher.Constraint("DistanceY", -1, 1, 0, 2, 224.0))
pad8 = body9.newObject("PartDesign::Pad", "Pad007")
pad8.Profile = sketch8
pad8.Length = 10
body10 = doc.addObject("PartDesign::Body", "Body009")
body10.AllowCompound = True

sketch9 = body10.newObject("Sketcher::SketchObject", "Sketch008")
sketch9.AttachmentSupport = (doc.getObject("XY_Plane009"), [""])
sketch9.MapMode = "FlatFace"
add_polygon(sketch9, [(84.73335, 260.364496), (83.322035, 259.812708), (82.322043, 259.097741), (81.60745, 258.093271), (81.058273, 256.677486), (80.953981, 256.31981), (80.953981, 252.301951), (92.778025, 252.301951), (93.192328, 252.558287), (94.577191, 253.290768), (96.035822, 253.86677), (97.539073, 254.250941), (99.084238, 254.45432), (100.643931, 254.474951), (102.19077, 254.310875), (104.675468, 253.633908), (106.99251, 252.480789), (107.27865, 252.301951), (119.105671, 252.301951), (119.105671, 256.31981), (119.00138, 256.677486), (118.320317, 258.329485), (117.39782, 259.404736), (116.559905, 259.916282), (115.549851, 260.331711), (115.1445, 260.468811), (100.11332, 260.468811), (85.082145, 260.465611)])
sketch9.addConstraint(Sketcher.Constraint("Vertical", 5))
sketch9.addConstraint(Sketcher.Constraint("Horizontal", 6))
sketch9.addConstraint(Sketcher.Constraint("Horizontal", 17))
sketch9.addConstraint(Sketcher.Constraint("Vertical", 18))
sketch9.addConstraint(Sketcher.Constraint("Horizontal", 25))
sketch9.addConstraint(Sketcher.Constraint("Horizontal", 6, 2, 16, 2))
sketch9.addConstraint(Sketcher.Constraint("Horizontal", 4, 2, 18, 2))
sketch9.addConstraint(Sketcher.Constraint("Horizontal", 3, 2, 19, 2))
sketch9.addConstraint(Sketcher.Constraint("Equal", 4, 19))
sketch9.addConstraint(Sketcher.Constraint("DistanceY", 8, 2, 9, 2, 0.576002))
sketch9.addConstraint(Sketcher.Constraint("DistanceY", 16, 2, 12, 2, 2.173))
sketch9.addConstraint(Sketcher.Constraint("DistanceY", 19, 2, 20, 2, 1.651999))
sketch9.addConstraint(Sketcher.Constraint("DistanceX", 17, 1, 17, 2, 11.827021))
sketch9.addConstraint(Sketcher.Constraint("DistanceX", 25, 2, 25, 1, 15.03118))
sketch9.addConstraint(Sketcher.Constraint("DistanceY", 5, 2, 5, 1, 4.017859))
sketch9.addConstraint(Sketcher.Constraint("DistanceX", -1, 1, 24, 2, 115.1445))
sketch9.addConstraint(Sketcher.Constraint("DistanceX", 13, 2, 17, 2, 16.914901))
sketch9.addConstraint(Sketcher.Constraint("DistanceY", 18, 2, 23, 2, 4.011901))
sketch9.addConstraint(Sketcher.Constraint("DistanceY", 23, 2, 24, 2, 0.1371))
sketch9.addConstraint(Sketcher.Constraint("DistanceX", 9, 2, 25, 2, 4.077498))
sketch9.addConstraint(Sketcher.Constraint("DistanceY", 4, 2, 26, 2, 4.145801))
sketch9.addConstraint(Sketcher.Constraint("DistanceX", 2, 2, 27, 2, 3.1259))
sketch9.addConstraint(Sketcher.Constraint("Distance", 0, 1.515348))
sketch9.addConstraint(Sketcher.Constraint("Distance", 2, 1.232722))
sketch9.addConstraint(Sketcher.Constraint("Distance", 4, 0.372571))
sketch9.addConstraint(Sketcher.Constraint("Distance", 7, 0.487191))
sketch9.addConstraint(Sketcher.Constraint("Distance", 9, 1.568242))
sketch9.addConstraint(Sketcher.Constraint("Distance", 12, 1.559829))
sketch9.addConstraint(Sketcher.Constraint("Distance", 14, 2.575269))
sketch9.addConstraint(Sketcher.Constraint("Distance", 15, 2.58812))
sketch9.addConstraint(Sketcher.Constraint("Distance", 16, 0.33743))
sketch9.addConstraint(Sketcher.Constraint("Distance", 23, 1.092149))
sketch9.addConstraint(Sketcher.Constraint("Distance", 24, 0.427909))
sketch9.addConstraint(Sketcher.Constraint("DistanceX", 6, 1, 6, 2, 11.824044))
sketch9.addConstraint(Sketcher.Constraint("DistanceY", -1, 1, 0, 2, 259.812708))
sketch9.addConstraint(Sketcher.Constraint("DistanceY", -1, 1, 1, 2, 259.097741))
sketch9.addConstraint(Sketcher.Constraint("DistanceX", -1, 1, 2, 2, 81.60745))
sketch9.addConstraint(Sketcher.Constraint("DistanceY", -1, 1, 2, 2, 258.093271))
sketch9.addConstraint(Sketcher.Constraint("DistanceX", -1, 1, 4, 2, 80.953981))
sketch9.addConstraint(Sketcher.Constraint("DistanceY", -1, 1, 4, 2, 256.31981))
sketch9.addConstraint(Sketcher.Constraint("DistanceX", -1, 1, 7, 2, 93.192328))
sketch9.addConstraint(Sketcher.Constraint("DistanceY", -1, 1, 8, 2, 253.290768))
sketch9.addConstraint(Sketcher.Constraint("DistanceY", -1, 1, 10, 2, 254.250941))
sketch9.addConstraint(Sketcher.Constraint("DistanceX", -1, 1, 11, 2, 99.084238))
sketch9.addConstraint(Sketcher.Constraint("DistanceY", -1, 1, 11, 2, 254.45432))
sketch9.addConstraint(Sketcher.Constraint("DistanceX", -1, 1, 13, 2, 102.19077))
sketch9.addConstraint(Sketcher.Constraint("DistanceY", -1, 1, 14, 2, 253.633908))
sketch9.addConstraint(Sketcher.Constraint("DistanceX", -1, 1, 15, 2, 106.99251))
sketch9.addConstraint(Sketcher.Constraint("DistanceX", -1, 1, 19, 2, 119.00138))
sketch9.addConstraint(Sketcher.Constraint("DistanceX", -1, 1, 21, 2, 117.39782))
sketch9.addConstraint(Sketcher.Constraint("DistanceX", 3, 2, 0, 2, 2.263762))
sketch9.addConstraint(Sketcher.Constraint("DistanceX", 9, 2, 10, 2, 1.503251))
sketch9.addConstraint(Sketcher.Constraint("DistanceY", 20, 2, 21, 2, 1.075251))
sketch9.addConstraint(Sketcher.Constraint("DistanceY", 17, 2, 22, 2, 7.614331))
sketch9.addConstraint(Sketcher.Constraint("DistanceX", 0, 2, 26, 2, 1.76011))
sketch9.addConstraint(Sketcher.Constraint("Distance", 20, 1.786882))
pad9 = body10.newObject("PartDesign::Pad", "Pad008")
pad9.Profile = sketch9
pad9.Length = 15
doc.recompute()

boolean5 = body10.newObject("PartDesign::Boolean", "Boolean004")
boolean5.Type = "Fuse"
boolean5.addObjects([body7])
doc.recompute()

boolean6 = body10.newObject("PartDesign::Boolean", "Boolean005")
boolean6.Type = "Fuse"
boolean6.addObjects([body8])
doc.recompute()

boolean7 = body10.newObject("PartDesign::Boolean", "Boolean006")
boolean7.Type = "Fuse"
boolean7.addObjects([body9])
doc.recompute()

boolean8 = body10.newObject("PartDesign::Boolean", "Boolean007")
boolean8.Type = "Cut"
boolean8.addObjects([body6])
doc.recompute()

fillet3 = body10.newObject("PartDesign::Fillet", "Fillet002")
fillet3.Base = (boolean8, edges_at(boolean8, [(95.95, 241.25, 10)]))
fillet3.Radius = 1
doc.recompute()

boolean9 = body10.newObject("PartDesign::Boolean", "Boolean008")
boolean9.Type = "Cut"
boolean9.addObjects([body4])

doc.recompute()
